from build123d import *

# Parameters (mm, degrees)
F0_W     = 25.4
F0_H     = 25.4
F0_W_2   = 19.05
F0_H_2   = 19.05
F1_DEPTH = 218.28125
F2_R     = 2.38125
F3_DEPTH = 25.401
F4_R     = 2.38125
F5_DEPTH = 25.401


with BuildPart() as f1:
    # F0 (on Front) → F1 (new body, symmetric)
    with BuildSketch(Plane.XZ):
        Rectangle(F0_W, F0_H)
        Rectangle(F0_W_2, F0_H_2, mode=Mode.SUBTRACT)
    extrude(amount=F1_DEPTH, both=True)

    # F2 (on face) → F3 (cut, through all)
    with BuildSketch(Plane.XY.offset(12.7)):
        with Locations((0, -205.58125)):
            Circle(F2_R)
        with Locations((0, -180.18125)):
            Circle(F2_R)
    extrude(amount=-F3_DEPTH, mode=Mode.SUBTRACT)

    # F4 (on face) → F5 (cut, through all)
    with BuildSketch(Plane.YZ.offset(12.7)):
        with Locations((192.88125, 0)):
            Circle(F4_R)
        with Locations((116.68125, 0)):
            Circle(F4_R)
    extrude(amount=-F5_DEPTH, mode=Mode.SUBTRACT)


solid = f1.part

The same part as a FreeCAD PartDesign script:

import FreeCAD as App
import Part
import Sketcher
Q = App.Units.Quantity


def add_polygon(sketch, points):
    """Adds a closed chain of lines whose ends are joined by coincident constraints."""
    first, n = sketch.GeometryCount, len(points)
    for a, b in zip(points, points[1:] + points[:1]):
        sketch.addGeometry(Part.LineSegment(App.Vector(*a, 0), App.Vector(*b, 0)), False)
    for i in range(n):
        sketch.addConstraint(Sketcher.Constraint("Coincident", first + i, 2, first + (i + 1) % n, 1))

doc = App.newDocument("Part")
body = doc.addObject("PartDesign::Body", "Body")

# Sketch on XZ plane
sketch1 = body.newObject("Sketcher::SketchObject", "Sketch")
sketch1.AttachmentSupport = (doc.getObject("XZ_Plane"), [""])
sketch1.MapMode = "FlatFace"
add_polygon(sketch1, [(-13, 13), (-13, -13), (13, -13), (13, 13)])  # lines 0-3
add_polygon(sketch1, [(10, -10), (-10, -10), (-10, 10), (10, 10)])  # lines 4-7
sketch1.addConstraint([
    Sketcher.Constraint("Vertical", 0),
    Sketcher.Constraint("Horizontal", 1),
    Sketcher.Constraint("Vertical", 2),
    Sketcher.Constraint("Horizontal", 3),
    Sketcher.Constraint("Horizontal", 4),
    Sketcher.Constraint("Vertical", 5),
    Sketcher.Constraint("Horizontal", 6),
    Sketcher.Constraint("Vertical", 7),
    Sketcher.Constraint("Symmetric", 0, 2, 2, 2, -1, 1),
    Sketcher.Constraint("Symmetric", 4, 2, 6, 2, -1, 1),
    Sketcher.Constraint("Equal", 3, 0),
    Sketcher.Constraint("Equal", 6, 5),
    Sketcher.Constraint("DistanceX", 1, 1, 1, 2, Q("1 in")),
    Sketcher.Constraint("DistanceX", 4, 2, 4, 1, Q("0.75 in")),
])
pad1 = body.newObject("PartDesign::Pad", "Pad")
pad1.Profile = sketch1
pad1.Length = Q("17.1875 in")
pad1.Midplane = True

# Sketch on XY plane
sketch2 = body.newObject("Sketcher::SketchObject", "Sketch001")
sketch2.AttachmentSupport = (doc.getObject("XY_Plane"), [""])
sketch2.MapMode = "FlatFace"
sketch2.AttachmentOffset = App.Placement(App.Vector(0, 0, 0.5 * 25.4), App.Rotation())
sketch2.addGeometry([
    Part.Circle(App.Vector(0, -205.6, 0), App.Vector(0, 0, 1), 2.4),
    Part.Circle(App.Vector(0, -180.2, 0), App.Vector(0, 0, 1), 2.4),
], False)
sketch2.addConstraint([
    Sketcher.Constraint("Equal", 0, 1),
    Sketcher.Constraint("PointOnObject", 0, 3, -2),
    Sketcher.Constraint("PointOnObject", 1, 3, -2),
    Sketcher.Constraint("Diameter", 0, Q("0.1875 in")),
    Sketcher.Constraint("DistanceY", 0, 3, 1, 3, Q("1 in")),
    Sketcher.Constraint("DistanceY", 0, 3, -1, 1, Q("8.09375 in")),
])
pocket1 = body.newObject("PartDesign::Pocket", "Pocket")
pocket1.Profile = sketch2
pocket1.Type = "ThroughAll"

# Sketch on YZ plane
sketch3 = body.newObject("Sketcher::SketchObject", "Sketch002")
sketch3.AttachmentSupport = (doc.getObject("YZ_Plane"), [""])
sketch3.MapMode = "FlatFace"
sketch3.AttachmentOffset = App.Placement(App.Vector(0, 0, 0.5 * 25.4), App.Rotation())
sketch3.addGeometry([
    Part.Circle(App.Vector(192.9, 0, 0), App.Vector(0, 0, 1), 2.4),
    Part.Circle(App.Vector(116.7, 0, 0), App.Vector(0, 0, 1), 2.4),
], False)
sketch3.addConstraint([
    Sketcher.Constraint("Equal", 0, 1),
    Sketcher.Constraint("PointOnObject", 0, 3, -1),
    Sketcher.Constraint("PointOnObject", 1, 3, -1),
    Sketcher.Constraint("Diameter", 0, Q("0.1875 in")),
    Sketcher.Constraint("DistanceX", 1, 3, 0, 3, Q("3 in")),
    Sketcher.Constraint("DistanceX", -1, 1, 0, 3, Q("7.59375 in")),
])
pocket2 = body.newObject("PartDesign::Pocket", "Pocket001")
pocket2.Profile = sketch3
pocket2.Type = "ThroughAll"

doc.recompute()
